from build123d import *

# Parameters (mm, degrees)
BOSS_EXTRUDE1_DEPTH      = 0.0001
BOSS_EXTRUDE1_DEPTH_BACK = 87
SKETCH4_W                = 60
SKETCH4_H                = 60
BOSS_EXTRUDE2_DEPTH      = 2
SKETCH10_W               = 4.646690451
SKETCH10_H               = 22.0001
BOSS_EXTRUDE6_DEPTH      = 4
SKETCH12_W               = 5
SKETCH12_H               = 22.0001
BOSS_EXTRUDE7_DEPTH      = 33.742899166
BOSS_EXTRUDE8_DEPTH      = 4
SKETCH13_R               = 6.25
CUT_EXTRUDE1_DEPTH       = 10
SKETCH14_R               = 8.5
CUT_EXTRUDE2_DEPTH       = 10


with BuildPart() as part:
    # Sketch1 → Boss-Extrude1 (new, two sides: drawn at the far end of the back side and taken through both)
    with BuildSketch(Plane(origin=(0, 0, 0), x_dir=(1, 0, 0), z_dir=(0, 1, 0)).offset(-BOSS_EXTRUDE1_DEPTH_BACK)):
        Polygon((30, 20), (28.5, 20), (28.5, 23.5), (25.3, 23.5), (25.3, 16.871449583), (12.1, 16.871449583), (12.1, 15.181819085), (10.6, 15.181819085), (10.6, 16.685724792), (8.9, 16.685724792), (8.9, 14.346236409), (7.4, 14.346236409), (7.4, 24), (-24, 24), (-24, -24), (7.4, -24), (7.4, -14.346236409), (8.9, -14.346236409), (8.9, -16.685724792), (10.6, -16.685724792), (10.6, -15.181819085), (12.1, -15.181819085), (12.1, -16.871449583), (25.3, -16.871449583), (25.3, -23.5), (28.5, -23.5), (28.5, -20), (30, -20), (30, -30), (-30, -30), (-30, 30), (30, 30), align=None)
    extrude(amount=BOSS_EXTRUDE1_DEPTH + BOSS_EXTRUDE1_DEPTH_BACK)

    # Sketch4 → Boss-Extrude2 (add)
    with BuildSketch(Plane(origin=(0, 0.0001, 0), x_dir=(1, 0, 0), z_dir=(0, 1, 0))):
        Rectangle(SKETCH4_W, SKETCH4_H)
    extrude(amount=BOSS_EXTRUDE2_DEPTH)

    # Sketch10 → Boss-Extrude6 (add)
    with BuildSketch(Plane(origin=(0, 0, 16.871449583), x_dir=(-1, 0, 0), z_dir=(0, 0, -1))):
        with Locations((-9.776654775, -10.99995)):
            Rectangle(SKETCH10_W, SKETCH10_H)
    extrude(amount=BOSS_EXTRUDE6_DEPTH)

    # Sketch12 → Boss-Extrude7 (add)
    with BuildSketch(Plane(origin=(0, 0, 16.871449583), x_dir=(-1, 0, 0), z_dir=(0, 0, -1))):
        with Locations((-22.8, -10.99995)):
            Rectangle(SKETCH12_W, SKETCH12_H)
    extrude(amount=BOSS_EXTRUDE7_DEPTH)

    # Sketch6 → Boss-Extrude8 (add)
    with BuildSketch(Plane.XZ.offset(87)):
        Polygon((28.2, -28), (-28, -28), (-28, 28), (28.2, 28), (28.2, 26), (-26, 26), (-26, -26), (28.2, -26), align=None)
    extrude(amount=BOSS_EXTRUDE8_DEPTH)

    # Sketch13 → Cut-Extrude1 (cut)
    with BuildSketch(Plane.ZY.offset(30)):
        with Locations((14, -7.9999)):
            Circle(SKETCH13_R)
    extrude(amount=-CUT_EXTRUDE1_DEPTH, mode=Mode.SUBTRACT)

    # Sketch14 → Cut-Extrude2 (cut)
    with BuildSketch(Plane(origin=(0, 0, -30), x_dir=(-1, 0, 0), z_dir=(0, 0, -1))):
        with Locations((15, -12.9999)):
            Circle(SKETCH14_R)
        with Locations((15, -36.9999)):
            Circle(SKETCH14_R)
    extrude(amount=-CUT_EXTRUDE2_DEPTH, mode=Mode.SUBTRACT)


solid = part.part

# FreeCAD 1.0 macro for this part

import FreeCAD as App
import Part
import Sketcher

V = App.Vector
Q = App.Units.Quantity


def add_polygon(sketch, points):
    """Adds a closed chain of lines whose ends are joined by coincident constraints."""
    first, n = sketch.GeometryCount, len(points)
    for a, b in zip(points, points[1:] + points[:1]):
        sketch.addGeometry(Part.LineSegment(App.Vector(*a, 0), App.Vector(*b, 0)), False)
    for i in range(n):
        sketch.addConstraint(Sketcher.Constraint("Coincident", first + i, 2, first + (i + 1) % n, 1))

doc = App.newDocument("Part")
params = doc.addObject("Spreadsheet::Sheet", "Params")
for row, (alias, value) in enumerate([
    ("sketch1_width", "60 mm"),
    ("sketch1_height", "10 mm"),
    ("sketch1_height2", "48 mm"),
    ("sketch1_width2", "1.5 mm"),
    ("sketch1_width3", "3.2 mm"),
    ("pad1_length", "0.0001 mm"),
    ("pad1_length2", "87 mm"),
    ("sketch2_width", "60 mm"),
    ("pad2_length", "2 mm"),
    ("pad3_length", "4 mm"),
    ("sketch4_width", "5 mm"),
    ("pad4_length", "33.742899 mm"),
    ("sketch5_height", "2 mm"),
    ("sketch5_height2", "52 mm"),
    ("sketch5_width", "56.2 mm"),
    ("sketch5_width2", "54.2 mm"),
    ("pad5_length", "4 mm"),
    ("sketch6_diameter", "12.5 mm"),
    ("pocket1_length", "10 mm"),
    ("sketch7_diameter", "17 mm"),
    ("pocket2_length", "10 mm"),
], start=1):
    params.set(f"A{row}", alias)
    params.set(f"B{row}", "=" + value)
    params.setAlias(f"B{row}", alias)

body = doc.addObject("PartDesign::Body", "Body")

sketch1 = body.newObject("Sketcher::SketchObject", "Sketch")
sketch1.AttachmentSupport = (doc.getObject("XZ_Plane"), [""])
sketch1.MapMode = "FlatFace"
add_polygon(sketch1, [(28.5, -20), (30, -20), (30, -30), (-30, -30), (-30, 30), (30, 30), (30, 20), (28.5, 20), (28.5, 23.5), (25.3, 23.5), (25.3, 16.9), (12.1, 16.9), (12.1, 15.2), (10.6, 15.2), (10.6, 16.7), (8.9, 16.7), (8.9, 14.3), (7.4, 14.3), (7.4, 24), (-24, 24), (-24, -24), (7.4, -24), (7.4, -14.3), (8.9, -14.3), (8.9, -16.7), (10.6, -16.7), (10.6, -15.2), (12.1, -15.2), (12.1, -16.9), (25.3, -16.9), (25.3, -23.5), (28.5, -23.5)])
sketch1.addConstraint(Sketcher.Constraint("Horizontal", 0))
sketch1.addConstraint(Sketcher.Constraint("Vertical", 1))
sketch1.addConstraint(Sketcher.Constraint("Horizontal", 2))
sketch1.addConstraint(Sketcher.Constraint("Vertical", 3))
sketch1.addConstraint(Sketcher.Constraint("Horizontal", 4))
sketch1.addConstraint(Sketcher.Constraint("Vertical", 5))
sketch1.addConstraint(Sketcher.Constraint("Horizontal", 6))
sketch1.addConstraint(Sketcher.Constraint("Vertical", 7))
sketch1.addConstraint(Sketcher.Constraint("Horizontal", 8))
sketch1.addConstraint(Sketcher.Constraint("Vertical", 9))
sketch1.addConstraint(Sketcher.Constraint("Horizontal", 10))
sketch1.addConstraint(Sketcher.Constraint("Vertical", 11))
sketch1.addConstraint(Sketcher.Constraint("Horizontal", 12))
sketch1.addConstraint(Sketcher.Constraint("Vertical", 13))
sketch1.addConstraint(Sketcher.Constraint("Horizontal", 14))
sketch1.addConstraint(Sketcher.Constraint("Vertical", 15))
sketch1.addConstraint(Sketcher.Constraint("Horizontal", 16))
sketch1.addConstraint(Sketcher.Constraint("Vertical", 17))
sketch1.addConstraint(Sketcher.Constraint("Horizontal", 18))
sketch1.addConstraint(Sketcher.Constraint("Vertical", 19))
sketch1.addConstraint(Sketcher.Constraint("Horizontal", 20))
sketch1.addConstraint(Sketcher.Constraint("Vertical", 21))
sketch1.addConstraint(Sketcher.Constraint("Horizontal", 22))
sketch1.addConstraint(Sketcher.Constraint("Vertical", 23))
sketch1.addConstraint(Sketcher.Constraint("Horizontal", 24))
sketch1.addConstraint(Sketcher.Constraint("Vertical", 25))
sketch1.addConstraint(Sketcher.Constraint("Horizontal", 26))
sketch1.addConstraint(Sketcher.Constraint("Vertical", 27))
sketch1.addConstraint(Sketcher.Constraint("Horizontal", 28))
sketch1.addConstraint(Sketcher.Constraint("Vertical", 29))
sketch1.addConstraint(Sketcher.Constraint("Horizontal", 30))
sketch1.addConstraint(Sketcher.Constraint("Vertical", 31))
sketch1.addConstraint(Sketcher.Constraint("Symmetric", 1, 2, 3, 2, -1, 1))
sketch1.addConstraint(Sketcher.Constraint("Symmetric", 0, 2, 5, 2, -1))
sketch1.addConstraint(Sketcher.Constraint("Symmetric", 17, 2, 20, 2, -1))
sketch1.addConstraint(Sketcher.Constraint("Symmetric", 15, 2, 22, 2, -1))
sketch1.addConstraint(Sketcher.Constraint("Symmetric", 13, 2, 24, 2, -1))
sketch1.addConstraint(Sketcher.Constraint("Symmetric", 11, 2, 26, 2, -1))
sketch1.addConstraint(Sketcher.Constraint("Symmetric", 9, 2, 28, 2, -1))
sketch1.addConstraint(Sketcher.Constraint("Symmetric", 7, 2, 30, 2, -1))
sketch1.addConstraint(Sketcher.Constraint("Equal", 6, 12))
sketch1.addConstraint(Sketcher.Constraint("Equal", 12, 16))
sketch1.addConstraint(Sketcher.Constraint("Equal", 4, 3))
sketch1.addConstraint(Sketcher.Constraint("DistanceX", 2, 2, 2, 1, Q("60 mm")))
sketch1.addConstraint(Sketcher.Constraint("DistanceY", 1, 2, 1, 1, Q("10 mm")))
sketch1.addConstraint(Sketcher.Constraint("DistanceY", 19, 2, 19, 1, Q("48 mm")))
sketch1.addConstraint(Sketcher.Constraint("DistanceX", 0, 1, 0, 2, Q("1.5 mm")))
sketch1.addConstraint(Sketcher.Constraint("DistanceX", 8, 2, 8, 1, Q("3.2 mm")))
sketch1.addConstraint(Sketcher.Constraint("DistanceX", 10, 2, 10, 1, Q("13.2 mm")))
sketch1.addConstraint(Sketcher.Constraint("DistanceX", 14, 2, 14, 1, Q("1.7 mm")))
sketch1.addConstraint(Sketcher.Constraint("DistanceX", 18, 2, 18, 1, Q("31.4 mm")))
sketch1.addConstraint(Sketcher.Constraint("DistanceY", 7, 1, 7, 2, Q("3.5 mm")))
sketch1.addConstraint(Sketcher.Constraint("DistanceY", 9, 2, 9, 1, Q("6.62855 mm")))
sketch1.addConstraint(Sketcher.Constraint("DistanceY", 11, 2, 11, 1, Q("1.68963 mm")))
sketch1.addConstraint(Sketcher.Constraint("DistanceY", 15, 2, 15, 1, Q("2.339488 mm")))
sketch1.addConstraint(Sketcher.Constraint("DistanceY", 13, 1, 13, 2, Q("1.503906 mm")))
sketch1.setExpression("Constraints[75]", "Params.sketch1_width")
sketch1.setExpression("Constraints[76]", "Params.sketch1_height")
sketch1.setExpression("Constraints[77]", "Params.sketch1_height2")
sketch1.setExpression("Constraints[78]", "Params.sketch1_width2")
sketch1.setExpression("Constraints[79]", "Params.sketch1_width3")
pad1 = body.newObject("PartDesign::Pad", "Pad")
pad1.Profile = sketch1
pad1.Type = "TwoLengths"
pad1.setExpression("Length", "Params.pad1_length")
pad1.setExpression("Length2", "Params.pad1_length2")
pad1.Reversed = True

sketch2 = body.newObject("Sketcher::SketchObject", "Sketch001")
sketch2.AttachmentSupport = (doc.getObject("XZ_Plane"), [""])
sketch2.MapMode = "FlatFace"
sketch2.AttachmentOffset = App.Placement(V(0, 0, -0.0001), App.Rotation())
add_polygon(sketch2, [(-30, -30), (-30, 30), (30, 30), (30, -30)])
sketch2.addConstraint(Sketcher.Constraint("Vertical", 0))
sketch2.addConstraint(Sketcher.Constraint("Horizontal", 1))
sketch2.addConstraint(Sketcher.Constraint("Vertical", 2))
sketch2.addConstraint(Sketcher.Constraint("Horizontal", 3))
sketch2.addConstraint(Sketcher.Constraint("Symmetric", 0, 2, 2, 2, -1, 1))
sketch2.addConstraint(Sketcher.Constraint("Equal", 3, 0))
sketch2.addConstraint(Sketcher.Constraint("DistanceX", 1, 1, 1, 2, Q("60 mm")))
sketch2.setExpression("Constraints[10]", "Params.sketch2_width")
pad2 = body.newObject("PartDesign::Pad", "Pad001")
pad2.Profile = sketch2
pad2.setExpression("Length", "Params.pad2_length")
pad2.Reversed = True

sketch3 = body.newObject("Sketcher::SketchObject", "Sketch002")
sketch3.AttachmentSupport = (doc.getObject("XY_Plane"), [""])
sketch3.MapMode = "FlatFace"
sketch3.AttachmentOffset = App.Placement(V(0, 0, 16.87145), App.Rotation())
add_polygon(sketch3, [(12.1, 0), (12.1, -22), (7.5, -22), (7.5, 0)])
sketch3.addConstraint(Sketcher.Constraint("Vertical", 0))
sketch3.addConstraint(Sketcher.Constraint("Horizontal", 1))
sketch3.addConstraint(Sketcher.Constraint("Vertical", 2))
sketch3.addConstraint(Sketcher.Constraint("Horizontal", 3))
sketch3.addConstraint(Sketcher.Constraint("DistanceY", 0, 2, -1, 1, Q("22 mm")))
sketch3.addConstraint(Sketcher.Constraint("DistanceX", -1, 1, 0, 2, Q("12.1 mm")))
sketch3.addConstraint(Sketcher.Constraint("DistanceY", 0, 2, 0, 1, Q("22.0001 mm")))
sketch3.addConstraint(Sketcher.Constraint("DistanceX", 1, 2, 1, 1, Q("4.64669 mm")))
pad3 = body.newObject("PartDesign::Pad", "Pad002")
pad3.Profile = sketch3
pad3.setExpression("Length", "Params.pad3_length")
pad3.Reversed = True

sketch4 = body.newObject("Sketcher::SketchObject", "Sketch003")
sketch4.AttachmentSupport = (doc.getObject("XY_Plane"), [""])
sketch4.MapMode = "FlatFace"
sketch4.AttachmentOffset = App.Placement(V(0, 0, 16.87145), App.Rotation())
add_polygon(sketch4, [(25, 0), (25, -22), (20, -22), (20, 0)])
sketch4.addConstraint(Sketcher.Constraint("Vertical", 0))
sketch4.addConstraint(Sketcher.Constraint("Horizontal", 1))
sketch4.addConstraint(Sketcher.Constraint("Vertical", 2))
sketch4.addConstraint(Sketcher.Constraint("Horizontal", 3))
sketch4.addConstraint(Sketcher.Constraint("DistanceX", 1, 2, 1, 1, Q("5 mm")))
sketch4.addConstraint(Sketcher.Constraint("DistanceY", 0, 2, -1, 1, Q("22 mm")))
sketch4.addConstraint(Sketcher.Constraint("DistanceX", -1, 1, 0, 2, Q("25.3 mm")))
sketch4.addConstraint(Sketcher.Constraint("DistanceY", 0, 2, 0, 1, Q("22.0001 mm")))
sketch4.setExpression("Constraints[8]", "Params.sketch4_width")
pad4 = body.newObject("PartDesign::Pad", "Pad003")
pad4.Profile = sketch4
pad4.setExpression("Length", "Params.pad4_length")
pad4.Reversed = True

sketch5 = body.newObject("Sketcher::SketchObject", "Sketch004")
sketch5.AttachmentSupport = (doc.getObject("XZ_Plane"), [""])
sketch5.MapMode = "FlatFace"
sketch5.AttachmentOffset = App.Placement(V(0, 0, 87), App.Rotation())
add_polygon(sketch5, [(-28, -28), (28.2, -28), (28.2, -26), (-26, -26), (-26, 26), (28.2, 26), (28.2, 28), (-28, 28)])
sketch5.addConstraint(Sketcher.Constraint("Horizontal", 0))
sketch5.addConstraint(Sketcher.Constraint("Vertical", 1))
sketch5.addConstraint(Sketcher.Constraint("Horizontal", 2))
sketch5.addConstraint(Sketcher.Constraint("Vertical", 3))
sketch5.addConstraint(Sketcher.Constraint("Horizontal", 4))
sketch5.addConstraint(Sketcher.Constraint("Vertical", 5))
sketch5.addConstraint(Sketcher.Constraint("Horizontal", 6))
sketch5.addConstraint(Sketcher.Constraint("Vertical", 7))
sketch5.addConstraint(Sketcher.Constraint("Symmetric", 1, 2, 4, 2, -1))
sketch5.addConstraint(Sketcher.Constraint("Equal", 1, 5))
sketch5.addConstraint(Sketcher.Constraint("DistanceY", 1, 1, 1, 2, Q("2 mm")))
sketch5.addConstraint(Sketcher.Constraint("DistanceY", 3, 1, 3, 2, Q("52 mm")))
sketch5.addConstraint(Sketcher.Constraint("DistanceX", 0, 1, 0, 2, Q("56.2 mm")))
sketch5.addConstraint(Sketcher.Constraint("DistanceX", 2, 2, 2, 1, Q("54.2 mm")))
sketch5.addConstraint(Sketcher.Constraint("DistanceX", 2, 2, -1, 1, Q("26 mm")))
sketch5.setExpression("Constraints[18]", "Params.sketch5_height")
sketch5.setExpression("Constraints[19]", "Params.sketch5_height2")
sketch5.setExpression("Constraints[20]", "Params.sketch5_width")
sketch5.setExpression("Constraints[21]", "Params.sketch5_width2")
pad5 = body.newObject("PartDesign::Pad", "Pad004")
pad5.Profile = sketch5
pad5.setExpression("Length", "Params.pad5_length")

sketch6 = body.newObject("Sketcher::SketchObject", "Sketch005")
sketch6.AttachmentSupport = (doc.getObject("YZ_Plane"), [""])
sketch6.MapMode = "FlatFace"
sketch6.AttachmentOffset = App.Placement(V(0, 0, -30), App.Rotation())
sketch6.addGeometry(Part.Circle(V(-8, 14, 0), V(0, 0, 1), 6), False)
sketch6.addConstraint(Sketcher.Constraint("Diameter", 0, Q("12.5 mm")))
sketch6.addConstraint(Sketcher.Constraint("DistanceY", -1, 1, 0, 3, Q("14 mm")))
sketch6.addConstraint(Sketcher.Constraint("DistanceX", 0, 3, -1, 1, Q("7.9999 mm")))
sketch6.setExpression("Constraints[0]", "Params.sketch6_diameter")
pocket1 = body.newObject("PartDesign::Pocket", "Pocket")
pocket1.Profile = sketch6
pocket1.setExpression("Length", "Params.pocket1_length")
pocket1.Reversed = True

sketch7 = body.newObject("Sketcher::SketchObject", "Sketch006")
sketch7.AttachmentSupport = (doc.getObject("XY_Plane"), [""])
sketch7.MapMode = "FlatFace"
sketch7.AttachmentOffset = App.Placement(V(0, 0, -30), App.Rotation())
sketch7.addGeometry(Part.Circle(V(-15, -13, 0), V(0, 0, 1), 8), False)
sketch7.addGeometry(Part.Circle(V(-15, -37, 0), V(0, 0, 1), 8), False)
sketch7.addConstraint(Sketcher.Constraint("Equal", 0, 1))
sketch7.addConstraint(Sketcher.Constraint("Vertical", 0, 3, 1, 3))
sketch7.addConstraint(Sketcher.Constraint("Diameter", 0, Q("17 mm")))
sketch7.addConstraint(Sketcher.Constraint("DistanceX", 0, 3, -1, 1, Q("15 mm")))
sketch7.addConstraint(Sketcher.Constraint("DistanceY", 1, 3, 0, 3, Q("24 mm")))
sketch7.addConstraint(Sketcher.Constraint("DistanceY", 0, 3, -1, 1, Q("12.9999 mm")))
sketch7.setExpression("Constraints[2]", "Params.sketch7_diameter")
pocket2 = body.newObject("PartDesign::Pocket", "Pocket001")
pocket2.Profile = sketch7
pocket2.setExpression("Length", "Params.pocket2_length")
pocket2.Reversed = True

doc.recompute()
